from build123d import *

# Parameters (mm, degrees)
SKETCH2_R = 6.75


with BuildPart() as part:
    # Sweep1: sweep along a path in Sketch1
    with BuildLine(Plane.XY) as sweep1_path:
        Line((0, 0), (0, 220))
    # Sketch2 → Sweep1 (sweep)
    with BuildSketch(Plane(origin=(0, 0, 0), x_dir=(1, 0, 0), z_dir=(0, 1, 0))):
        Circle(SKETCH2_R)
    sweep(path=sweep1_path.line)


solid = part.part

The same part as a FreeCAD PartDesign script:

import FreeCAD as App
import Part
import Sketcher

V = App.Vector
Q = App.Units.Quantity

doc = App.newDocument("Part")
body = doc.addObject("PartDesign::Body", "Body")

# Sketch on XZ plane
sketch1 = body.newObject("Sketcher::SketchObject", "Sketch")
sketch1.AttachmentSupport = (doc.getObject("XZ_Plane"), [""])
sketch1.MapMode = "FlatFace"
sketch1.addGeometry(Part.Circle(V(0, 0, 0), V(0, 0, 1), 7), False)
sketch1.addConstraint(Sketcher.Constraint("Coincident", 0, 3, -1, 1))
sketch1.addConstraint(Sketcher.Constraint("Diameter", 0, Q("13.5 mm")))

# Sketch on XY plane
sketch2 = body.newObject("Sketcher::SketchObject", "Sketch001")
sketch2.AttachmentSupport = (doc.getObject("XY_Plane"), [""])
sketch2.MapMode = "FlatFace"
sketch2.addGeometry(Part.LineSegment(V(0, 0, 0), V(0, 220, 0)), False)
sketch2.addConstraint(Sketcher.Constraint("Vertical", 0))
sketch2.addConstraint(Sketcher.Constraint("Coincident", 0, 1, -1, 1))
sketch2.addConstraint(Sketcher.Constraint("DistanceY", 0, 1, 0, 2, Q("220 mm")))
doc.recompute()

additivepipe = body.newObject("PartDesign::AdditivePipe", "AdditivePipe")
additivepipe.Profile = sketch1
additivepipe.Spine = (sketch2, ["Edge1"])

doc.recompute()
